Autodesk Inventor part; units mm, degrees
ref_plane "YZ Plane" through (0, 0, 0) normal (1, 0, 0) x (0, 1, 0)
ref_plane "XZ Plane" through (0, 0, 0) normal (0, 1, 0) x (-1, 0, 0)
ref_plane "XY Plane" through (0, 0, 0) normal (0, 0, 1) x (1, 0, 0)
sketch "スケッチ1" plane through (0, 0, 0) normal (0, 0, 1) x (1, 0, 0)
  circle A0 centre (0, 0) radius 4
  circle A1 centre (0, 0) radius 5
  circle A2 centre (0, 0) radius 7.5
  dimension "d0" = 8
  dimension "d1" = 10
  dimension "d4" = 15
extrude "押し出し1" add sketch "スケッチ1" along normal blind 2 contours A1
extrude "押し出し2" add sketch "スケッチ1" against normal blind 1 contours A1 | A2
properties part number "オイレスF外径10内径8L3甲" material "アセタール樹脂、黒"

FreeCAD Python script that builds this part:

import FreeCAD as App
import Part
import Sketcher
from FreeCAD import Vector
Q = App.Units.Quantity

doc = App.newDocument("Part")
body = doc.addObject("PartDesign::Body", "Body")

# Sketch on XY plane
sketch1 = body.newObject("Sketcher::SketchObject", "Sketch")
sketch1.AttachmentSupport = (doc.getObject("XY_Plane"), [""])
sketch1.MapMode = "FlatFace"
sketch1.addGeometry(Part.Circle(Vector(0, 0, 0), Vector(0, 0, 1), 5), False)
sketch1.addGeometry(Part.Circle(Vector(0, 0, 0), Vector(0, 0, 1), 4), False)
sketch1.addConstraint(Sketcher.Constraint("Coincident", 0, 3, -1, 1))
sketch1.addConstraint(Sketcher.Constraint("Coincident", 1, 3, -1, 1))
sketch1.addConstraint(Sketcher.Constraint("Diameter", 0, Q("10 mm")))
sketch1.addConstraint(Sketcher.Constraint("Diameter", 1, Q("8 mm")))
pad1 = body.newObject("PartDesign::Pad", "Pad")
pad1.Profile = sketch1
pad1.Length = 2

# Sketch on XY plane
sketch2 = body.newObject("Sketcher::SketchObject", "Sketch001")
sketch2.AttachmentSupport = (doc.getObject("XY_Plane"), [""])
sketch2.MapMode = "FlatFace"
sketch2.addGeometry(Part.Circle(Vector(0, 0, 0), Vector(0, 0, 1), 7.5), False)
sketch2.addGeometry(Part.Circle(Vector(0, 0, 0), Vector(0, 0, 1), 4), False)
sketch2.addConstraint(Sketcher.Constraint("Coincident", 0, 3, -1, 1))
sketch2.addConstraint(Sketcher.Constraint("Coincident", 1, 3, -1, 1))
sketch2.addConstraint(Sketcher.Constraint("Diameter", 0, Q("15 mm")))
sketch2.addConstraint(Sketcher.Constraint("Diameter", 1, Q("8 mm")))
pad2 = body.newObject("PartDesign::Pad", "Pad001")
pad2.Profile = sketch2
pad2.Length = 1
pad2.Reversed = True

doc.recompute()
